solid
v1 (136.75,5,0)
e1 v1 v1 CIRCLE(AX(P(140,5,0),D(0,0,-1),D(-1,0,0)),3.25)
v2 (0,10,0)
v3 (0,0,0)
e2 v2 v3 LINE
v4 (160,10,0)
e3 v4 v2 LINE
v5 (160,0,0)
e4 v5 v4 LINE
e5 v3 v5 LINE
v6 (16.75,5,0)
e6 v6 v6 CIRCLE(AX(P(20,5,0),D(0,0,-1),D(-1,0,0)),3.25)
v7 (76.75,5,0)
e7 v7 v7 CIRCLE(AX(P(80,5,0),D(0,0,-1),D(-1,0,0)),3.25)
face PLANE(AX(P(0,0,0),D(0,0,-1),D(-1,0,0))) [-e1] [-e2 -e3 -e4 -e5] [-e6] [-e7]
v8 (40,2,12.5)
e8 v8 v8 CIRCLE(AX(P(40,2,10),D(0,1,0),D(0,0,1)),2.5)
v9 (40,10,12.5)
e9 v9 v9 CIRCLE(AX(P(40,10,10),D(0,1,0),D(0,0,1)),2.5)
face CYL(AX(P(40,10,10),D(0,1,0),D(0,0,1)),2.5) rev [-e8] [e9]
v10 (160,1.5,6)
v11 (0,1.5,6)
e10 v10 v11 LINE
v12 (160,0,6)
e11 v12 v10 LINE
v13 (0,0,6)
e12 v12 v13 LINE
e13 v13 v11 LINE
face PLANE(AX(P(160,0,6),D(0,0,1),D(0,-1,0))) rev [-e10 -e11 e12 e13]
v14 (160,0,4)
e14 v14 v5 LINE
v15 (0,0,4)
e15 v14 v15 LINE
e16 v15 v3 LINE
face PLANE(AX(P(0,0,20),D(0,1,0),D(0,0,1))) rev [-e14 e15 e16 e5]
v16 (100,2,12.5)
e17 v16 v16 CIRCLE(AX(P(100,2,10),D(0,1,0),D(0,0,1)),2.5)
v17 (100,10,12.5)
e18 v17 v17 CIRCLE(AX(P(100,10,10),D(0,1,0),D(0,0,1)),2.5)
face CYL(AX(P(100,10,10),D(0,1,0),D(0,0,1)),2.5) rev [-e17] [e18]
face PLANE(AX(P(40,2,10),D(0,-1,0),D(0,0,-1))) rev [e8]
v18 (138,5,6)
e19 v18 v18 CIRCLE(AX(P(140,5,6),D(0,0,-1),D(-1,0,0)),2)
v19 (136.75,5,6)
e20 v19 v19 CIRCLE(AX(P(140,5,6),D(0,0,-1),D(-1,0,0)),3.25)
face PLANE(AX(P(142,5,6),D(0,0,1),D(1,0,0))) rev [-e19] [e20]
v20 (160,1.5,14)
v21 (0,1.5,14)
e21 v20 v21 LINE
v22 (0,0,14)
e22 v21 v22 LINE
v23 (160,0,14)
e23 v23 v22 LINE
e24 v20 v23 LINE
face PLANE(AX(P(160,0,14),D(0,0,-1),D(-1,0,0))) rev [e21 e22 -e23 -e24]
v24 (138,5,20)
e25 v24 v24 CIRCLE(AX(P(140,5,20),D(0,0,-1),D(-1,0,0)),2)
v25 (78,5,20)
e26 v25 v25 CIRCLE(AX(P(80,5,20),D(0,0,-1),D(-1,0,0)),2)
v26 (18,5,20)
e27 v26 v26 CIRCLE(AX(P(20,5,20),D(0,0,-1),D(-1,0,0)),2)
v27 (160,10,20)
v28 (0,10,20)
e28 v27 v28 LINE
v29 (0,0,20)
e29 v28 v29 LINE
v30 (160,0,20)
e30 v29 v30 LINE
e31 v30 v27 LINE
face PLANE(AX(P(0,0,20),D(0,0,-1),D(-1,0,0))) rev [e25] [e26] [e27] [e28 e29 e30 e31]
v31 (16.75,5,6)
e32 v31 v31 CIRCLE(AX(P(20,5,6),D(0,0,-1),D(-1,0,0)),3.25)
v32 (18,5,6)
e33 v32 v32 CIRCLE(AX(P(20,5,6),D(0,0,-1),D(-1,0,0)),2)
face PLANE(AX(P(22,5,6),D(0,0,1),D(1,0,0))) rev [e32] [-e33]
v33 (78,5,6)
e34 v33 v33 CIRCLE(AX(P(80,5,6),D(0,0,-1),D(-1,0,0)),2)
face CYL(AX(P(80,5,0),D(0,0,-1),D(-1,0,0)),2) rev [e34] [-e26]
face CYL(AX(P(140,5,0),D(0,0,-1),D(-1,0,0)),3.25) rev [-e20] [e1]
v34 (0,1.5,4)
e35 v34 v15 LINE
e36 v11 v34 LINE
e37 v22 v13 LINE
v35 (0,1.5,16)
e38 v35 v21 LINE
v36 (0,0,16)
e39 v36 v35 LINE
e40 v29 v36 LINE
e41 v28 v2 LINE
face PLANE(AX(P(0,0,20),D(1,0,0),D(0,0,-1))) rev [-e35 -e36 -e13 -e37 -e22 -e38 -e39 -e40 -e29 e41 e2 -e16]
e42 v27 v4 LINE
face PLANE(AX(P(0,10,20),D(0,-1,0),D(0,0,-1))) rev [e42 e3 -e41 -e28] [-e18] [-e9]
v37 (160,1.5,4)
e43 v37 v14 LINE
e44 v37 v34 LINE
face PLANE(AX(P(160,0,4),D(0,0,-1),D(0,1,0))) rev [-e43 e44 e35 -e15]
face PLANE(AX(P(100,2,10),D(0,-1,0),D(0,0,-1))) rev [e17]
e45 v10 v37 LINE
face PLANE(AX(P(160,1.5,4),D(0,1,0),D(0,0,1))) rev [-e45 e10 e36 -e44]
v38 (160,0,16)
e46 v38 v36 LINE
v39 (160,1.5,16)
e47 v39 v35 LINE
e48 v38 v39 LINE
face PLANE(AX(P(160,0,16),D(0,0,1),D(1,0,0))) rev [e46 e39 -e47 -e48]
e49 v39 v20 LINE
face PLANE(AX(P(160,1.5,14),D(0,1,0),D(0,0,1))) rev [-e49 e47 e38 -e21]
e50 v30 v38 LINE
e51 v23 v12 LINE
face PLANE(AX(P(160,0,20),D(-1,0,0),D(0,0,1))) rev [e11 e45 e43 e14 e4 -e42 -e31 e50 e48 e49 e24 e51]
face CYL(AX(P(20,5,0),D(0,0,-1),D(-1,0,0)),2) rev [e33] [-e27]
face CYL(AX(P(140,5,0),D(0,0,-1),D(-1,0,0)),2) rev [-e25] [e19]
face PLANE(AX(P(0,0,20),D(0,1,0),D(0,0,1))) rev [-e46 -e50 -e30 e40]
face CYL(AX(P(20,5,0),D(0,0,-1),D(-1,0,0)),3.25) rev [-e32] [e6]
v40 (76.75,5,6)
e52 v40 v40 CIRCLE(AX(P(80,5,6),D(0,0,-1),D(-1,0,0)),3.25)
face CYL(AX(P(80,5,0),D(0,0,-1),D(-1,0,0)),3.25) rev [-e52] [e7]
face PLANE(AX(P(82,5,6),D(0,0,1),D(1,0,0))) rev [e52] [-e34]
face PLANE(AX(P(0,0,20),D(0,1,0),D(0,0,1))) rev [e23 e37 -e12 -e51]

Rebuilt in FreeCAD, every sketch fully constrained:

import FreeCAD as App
import Part
import Sketcher
from FreeCAD import Vector


def add_polygon(sketch, points):
    """Adds a closed chain of lines whose ends are joined by coincident constraints."""
    first, n = sketch.GeometryCount, len(points)
    for a, b in zip(points, points[1:] + points[:1]):
        sketch.addGeometry(Part.LineSegment(App.Vector(*a, 0), App.Vector(*b, 0)), False)
    for i in range(n):
        sketch.addConstraint(Sketcher.Constraint("Coincident", first + i, 2, first + (i + 1) % n, 1))

doc = App.newDocument("Part")
params = doc.addObject("Spreadsheet::Sheet", "Params")
for row, (alias, value) in enumerate([
    ("sketch1_width", "160 mm"),
    ("sketch1_height", "10 mm"),
    ("pad1_length", "20 mm"),
    ("sketch2_diameter", "5 mm"),
    ("hole_diameter", "5 mm"),
    ("hole_depth", "8 mm"),
    ("sketch3_height", "2 mm"),
    ("sketch3_width", "1.5 mm"),
    ("sketch4_diameter", "4 mm"),
    ("hole2_diameter", "4 mm"),
    ("hole2_cbore_diameter", "6.5 mm"),
    ("hole2_cbore_depth", "6 mm"),
], start=1):
    params.set(f"A{row}", alias)
    params.set(f"B{row}", "=" + value)
    params.setAlias(f"B{row}", alias)

body = doc.addObject("PartDesign::Body", "Body")

sketch1 = body.newObject("Sketcher::SketchObject", "Sketch")
sketch1.AttachmentSupport = (doc.getObject("XY_Plane"), [""])
sketch1.MapMode = "FlatFace"
add_polygon(sketch1, [(0, 10), (0, 0), (160, 0), (160, 10)])
sketch1.addConstraint([
    Sketcher.Constraint("Vertical", 0),
    Sketcher.Constraint("Horizontal", 1),
    Sketcher.Constraint("Vertical", 2),
    Sketcher.Constraint("Horizontal", 3),
    Sketcher.Constraint("Coincident", 0, 2, -1, 1),
    Sketcher.Constraint("DistanceX", 1, 1, 1, 2, 160.0),
    Sketcher.Constraint("DistanceY", 0, 2, 0, 1, 10.0),
])
sketch1.setExpression("Constraints[9]", "Params.sketch1_width")
sketch1.setExpression("Constraints[10]", "Params.sketch1_height")
pad1 = body.newObject("PartDesign::Pad", "Pad")
pad1.Profile = sketch1
pad1.setExpression("Length", "Params.pad1_length")

sketch2 = body.newObject("Sketcher::SketchObject", "Sketch001")
sketch2.AttachmentSupport = (doc.getObject("XZ_Plane"), [""])
sketch2.MapMode = "FlatFace"
sketch2.AttachmentOffset = App.Placement(Vector(0, 0, -10), App.Rotation())
sketch2.addGeometry([
    Part.Circle(Vector(40, 10, 0), Vector(0, 0, 1), 2.5),
    Part.Circle(Vector(100, 10, 0), Vector(0, 0, 1), 2.5),
], False)
sketch2.addConstraint([
    Sketcher.Constraint("Equal", 0, 1),
    Sketcher.Constraint("Horizontal", 0, 3, 1, 3),
    Sketcher.Constraint("Diameter", 0, 5.0),
    Sketcher.Constraint("DistanceX", -1, 1, 0, 3, 40.0),
    Sketcher.Constraint("DistanceY", -1, 1, 0, 3, 10.0),
    Sketcher.Constraint("DistanceX", -1, 1, 1, 3, 100.0),
])
sketch2.setExpression("Constraints[2]", "Params.sketch2_diameter")
doc.recompute()
hole = body.newObject("PartDesign::Hole", "Hole")
hole.Profile = sketch2
hole.ThreadType = "None"
hole.setExpression("Diameter", "Params.hole_diameter")
hole.DepthType = "Dimension"
hole.setExpression("Depth", "Params.hole_depth")
hole.DrillPoint = "Flat"
hole.Reversed = True

sketch3 = body.newObject("Sketcher::SketchObject", "Sketch002")
sketch3.AttachmentSupport = (doc.getObject("YZ_Plane"), [""])
sketch3.MapMode = "FlatFace"
add_polygon(sketch3, [(1.5, 4), (0, 4), (0, 6), (1.5, 6)])
add_polygon(sketch3, [(1.5, 14), (0, 14), (0, 16), (1.5, 16)])
sketch3.addConstraint([
    Sketcher.Constraint("Horizontal", 0),
    Sketcher.Constraint("Vertical", 1),
    Sketcher.Constraint("Horizontal", 2),
    Sketcher.Constraint("Vertical", 3),
    Sketcher.Constraint("Horizontal", 4),
    Sketcher.Constraint("Vertical", 5),
    Sketcher.Constraint("Horizontal", 6),
    Sketcher.Constraint("Vertical", 7),
    Sketcher.Constraint("PointOnObject", 0, 2, -2),
    Sketcher.Constraint("PointOnObject", 4, 2, -2),
    Sketcher.Constraint("Vertical", 3, 2, 6, 2),
    Sketcher.Constraint("Equal", 3, 5),
    Sketcher.Constraint("DistanceY", 1, 1, 1, 2, 2.0),
    Sketcher.Constraint("DistanceX", 0, 2, 0, 1, 1.5),
    Sketcher.Constraint("DistanceY", -1, 1, 0, 2, 4.0),
    Sketcher.Constraint("DistanceY", -1, 1, 4, 2, 14.0),
])
sketch3.setExpression("Constraints[20]", "Params.sketch3_height")
sketch3.setExpression("Constraints[21]", "Params.sketch3_width")
pocket1 = body.newObject("PartDesign::Pocket", "Pocket")
pocket1.Profile = sketch3
pocket1.Type = "ThroughAll"
pocket1.Reversed = True

sketch4 = body.newObject("Sketcher::SketchObject", "Sketch003")
sketch4.AttachmentSupport = (doc.getObject("XY_Plane"), [""])
sketch4.MapMode = "FlatFace"
sketch4.addGeometry([
    Part.Circle(Vector(140, 5, 0), Vector(0, 0, 1), 2),
    Part.Circle(Vector(80, 5, 0), Vector(0, 0, 1), 2),
    Part.Circle(Vector(20, 5, 0), Vector(0, 0, 1), 2),
], False)
sketch4.addConstraint([
    Sketcher.Constraint("Equal", 0, 1),
    Sketcher.Constraint("Equal", 1, 2),
    Sketcher.Constraint("Horizontal", 0, 3, 1, 3),
    Sketcher.Constraint("Horizontal", 1, 3, 2, 3),
    Sketcher.Constraint("Diameter", 0, 4.0),
    Sketcher.Constraint("DistanceX", -1, 1, 0, 3, 140.0),
    Sketcher.Constraint("DistanceY", -1, 1, 0, 3, 5.0),
    Sketcher.Constraint("DistanceX", -1, 1, 1, 3, 80.0),
    Sketcher.Constraint("DistanceX", -1, 1, 2, 3, 20.0),
])
sketch4.setExpression("Constraints[4]", "Params.sketch4_diameter")
doc.recompute()
hole2 = body.newObject("PartDesign::Hole", "Hole001")
hole2.Profile = sketch4
hole2.ThreadType = "None"
hole2.setExpression("Diameter", "Params.hole2_diameter")
hole2.DepthType = "ThroughAll"
hole2.HoleCutType = "Counterbore"
hole2.setExpression("HoleCutDiameter", "Params.hole2_cbore_diameter")
hole2.setExpression("HoleCutDepth", "Params.hole2_cbore_depth")
hole2.Reversed = True

doc.recompute()
